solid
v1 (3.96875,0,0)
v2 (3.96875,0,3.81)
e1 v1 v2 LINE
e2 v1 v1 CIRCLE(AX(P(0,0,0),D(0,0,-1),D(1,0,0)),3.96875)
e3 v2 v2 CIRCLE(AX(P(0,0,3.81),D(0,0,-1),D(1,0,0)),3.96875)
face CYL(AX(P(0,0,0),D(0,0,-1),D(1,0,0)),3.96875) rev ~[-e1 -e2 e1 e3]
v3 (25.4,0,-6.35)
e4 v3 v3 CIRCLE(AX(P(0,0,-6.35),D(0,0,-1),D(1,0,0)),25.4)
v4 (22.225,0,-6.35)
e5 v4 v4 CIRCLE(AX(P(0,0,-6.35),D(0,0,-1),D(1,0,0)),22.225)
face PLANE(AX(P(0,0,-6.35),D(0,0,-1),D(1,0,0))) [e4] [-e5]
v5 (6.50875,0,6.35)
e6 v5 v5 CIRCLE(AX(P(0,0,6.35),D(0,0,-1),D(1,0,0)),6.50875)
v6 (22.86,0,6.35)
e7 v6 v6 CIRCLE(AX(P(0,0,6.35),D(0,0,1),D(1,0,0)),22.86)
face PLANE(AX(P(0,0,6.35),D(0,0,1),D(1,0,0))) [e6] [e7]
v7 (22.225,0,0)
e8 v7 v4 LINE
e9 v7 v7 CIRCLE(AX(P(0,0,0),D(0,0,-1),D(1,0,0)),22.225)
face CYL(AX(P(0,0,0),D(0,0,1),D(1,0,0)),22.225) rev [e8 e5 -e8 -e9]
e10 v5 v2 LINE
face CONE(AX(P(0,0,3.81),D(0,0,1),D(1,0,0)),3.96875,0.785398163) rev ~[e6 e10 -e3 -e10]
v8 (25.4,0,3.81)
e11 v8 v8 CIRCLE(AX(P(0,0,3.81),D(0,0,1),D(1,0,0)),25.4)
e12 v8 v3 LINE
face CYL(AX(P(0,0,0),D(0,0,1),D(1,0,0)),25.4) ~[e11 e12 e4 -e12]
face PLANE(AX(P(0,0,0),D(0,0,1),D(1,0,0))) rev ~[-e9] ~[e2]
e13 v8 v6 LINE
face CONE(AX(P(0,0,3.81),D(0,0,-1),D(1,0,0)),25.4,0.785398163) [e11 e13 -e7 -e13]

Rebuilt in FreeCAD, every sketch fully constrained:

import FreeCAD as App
import Part
import Sketcher
from FreeCAD import Vector
Q = App.Units.Quantity


def edges_at(feature, points):
    """Names of the edges that pass closest to the given points."""
    edges = feature.Shape.Edges
    near = lambda p: min(range(len(edges)), key=lambda i: edges[i].distToShape(Part.Vertex(*p))[0])
    return sorted({f"Edge{near(p) + 1}" for p in points})

doc = App.newDocument("Part")
body = doc.addObject("PartDesign::Body", "Body")

sketch1 = body.newObject("Sketcher::SketchObject", "Sketch")
sketch1.AttachmentSupport = (doc.getObject("XY_Plane"), [""])
sketch1.MapMode = "FlatFace"
sketch1.addGeometry(Part.Circle(Vector(0, 0, 0), Vector(0, 0, 1), 25.4), False)
sketch1.addConstraint(Sketcher.Constraint("Coincident", 0, 3, -1, 1))
sketch1.addConstraint(Sketcher.Constraint("Diameter", 0, Q("2 in")))
pad1 = body.newObject("PartDesign::Pad", "Pad")
pad1.Profile = sketch1
pad1.Length = Q("0.25 in")

sketch2 = body.newObject("Sketcher::SketchObject", "Sketch001")
sketch2.AttachmentSupport = (doc.getObject("XY_Plane"), [""])
sketch2.MapMode = "FlatFace"
sketch2.addGeometry(Part.Circle(Vector(0, 0, 0), Vector(0, 0, 1), 3.96875), False)
sketch2.addConstraint(Sketcher.Constraint("Coincident", 0, 3, -1, 1))
sketch2.addConstraint(Sketcher.Constraint("Diameter", 0, Q("0.3125 in")))
pocket1 = body.newObject("PartDesign::Pocket", "Pocket")
pocket1.Profile = sketch2
pocket1.Length = Q("1 in")
pocket1.Reversed = True

sketch3 = body.newObject("Sketcher::SketchObject", "Sketch002")
sketch3.AttachmentSupport = (doc.getObject("XY_Plane"), [""])
sketch3.MapMode = "FlatFace"
sketch3.addGeometry(Part.Circle(Vector(0, 0, 0), Vector(0, 0, 1), 25.4), False)
sketch3.addGeometry(Part.Circle(Vector(0, 0, 0), Vector(0, 0, 1), 22.225), False)
sketch3.addConstraint(Sketcher.Constraint("Coincident", 0, 3, -1, 1))
sketch3.addConstraint(Sketcher.Constraint("Coincident", 1, 3, -1, 1))
sketch3.addConstraint(Sketcher.Constraint("Diameter", 0, Q("2 in")))
sketch3.addConstraint(Sketcher.Constraint("Diameter", 1, Q("1.75 in")))
pad2 = body.newObject("PartDesign::Pad", "Pad001")
pad2.Profile = sketch3
pad2.Length = Q("0.25 in")
pad2.Reversed = True
doc.recompute()

chamfer = body.newObject("PartDesign::Chamfer", "Chamfer")
chamfer.Base = (pad2, edges_at(pad2, [(-3.969, 0, 6.35), (-25.4, 0, 6.35)]))
chamfer.Size = Q("0.1 in")

doc.recompute()
